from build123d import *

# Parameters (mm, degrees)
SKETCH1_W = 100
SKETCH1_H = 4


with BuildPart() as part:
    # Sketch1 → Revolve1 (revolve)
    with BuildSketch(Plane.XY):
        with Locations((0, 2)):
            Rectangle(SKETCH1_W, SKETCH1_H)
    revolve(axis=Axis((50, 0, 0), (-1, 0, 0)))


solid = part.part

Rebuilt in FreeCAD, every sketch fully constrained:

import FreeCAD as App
import Part
import Sketcher
Q = App.Units.Quantity

doc = App.newDocument("Part")
body = doc.addObject("PartDesign::Body", "Body")

# Sketch on XY plane
sketch1 = doc.addObject("Sketcher::SketchObject", "Sketch")
body.addObject(sketch1)
sketch1.AttachmentSupport = (doc.XY_Plane, [""])
sketch1.MapMode = "FlatFace"
sketch1.addGeometry([
    Part.LineSegment(App.Vector(-50, 4, 0), App.Vector(-50, 0, 0)),
    Part.LineSegment(App.Vector(-50, 0, 0), App.Vector(50, 0, 0)),
    Part.LineSegment(App.Vector(50, 0, 0), App.Vector(50, 4, 0)),
    Part.LineSegment(App.Vector(50, 4, 0), App.Vector(-50, 4, 0)),
], False)
sketch1.addConstraint([
    Sketcher.Constraint("Coincident", 0, 2, 1, 1),
    Sketcher.Constraint("Coincident", 1, 2, 2, 1),
    Sketcher.Constraint("Coincident", 2, 2, 3, 1),
    Sketcher.Constraint("Coincident", 3, 2, 0, 1),
    Sketcher.Constraint("Vertical", 0),
    Sketcher.Constraint("Horizontal", 1),
    Sketcher.Constraint("Vertical", 2),
    Sketcher.Constraint("Horizontal", 3),
    Sketcher.Constraint("Symmetric", 0, 2, 1, 2, -1, 1),
    Sketcher.Constraint("DistanceX", 1, 1, 1, 2, Q("100 mm")),
    Sketcher.Constraint("DistanceY", 0, 2, 0, 1, Q("4 mm")),
])
revolution = doc.addObject("PartDesign::Revolution", "Revolution")
body.addObject(revolution)
revolution.Profile = sketch1
revolution.ReferenceAxis = (sketch1, ["H_Axis"])
revolution.Angle = 360

doc.recompute()
